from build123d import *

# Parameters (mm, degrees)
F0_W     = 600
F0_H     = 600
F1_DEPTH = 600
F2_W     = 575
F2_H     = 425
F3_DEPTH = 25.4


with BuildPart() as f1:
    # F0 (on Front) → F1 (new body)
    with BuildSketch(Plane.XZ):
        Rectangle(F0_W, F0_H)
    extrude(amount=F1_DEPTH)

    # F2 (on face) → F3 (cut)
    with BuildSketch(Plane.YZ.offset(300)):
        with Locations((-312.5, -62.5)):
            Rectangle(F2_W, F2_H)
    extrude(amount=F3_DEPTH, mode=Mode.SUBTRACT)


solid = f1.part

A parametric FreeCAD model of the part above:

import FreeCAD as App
import Part
import Sketcher
Q = App.Units.Quantity

doc = App.newDocument("Part")
body = doc.addObject("PartDesign::Body", "Body")

# Sketch on XZ plane
sketch1 = body.newObject("Sketcher::SketchObject", "Sketch")
sketch1.AttachmentSupport = (doc.getObject("XZ_Plane"), [""])
sketch1.MapMode = "FlatFace"
sketch1.addGeometry([
    Part.LineSegment(App.Vector(-300, 300, 0), App.Vector(-300, -300, 0)),
    Part.LineSegment(App.Vector(-300, -300, 0), App.Vector(300, -300, 0)),
    Part.LineSegment(App.Vector(300, -300, 0), App.Vector(300, 300, 0)),
    Part.LineSegment(App.Vector(300, 300, 0), App.Vector(-300, 300, 0)),
], False)
sketch1.addConstraint([
    Sketcher.Constraint("Coincident", 0, 2, 1, 1),
    Sketcher.Constraint("Coincident", 1, 2, 2, 1),
    Sketcher.Constraint("Coincident", 2, 2, 3, 1),
    Sketcher.Constraint("Coincident", 3, 2, 0, 1),
    Sketcher.Constraint("Vertical", 0),
    Sketcher.Constraint("Horizontal", 1),
    Sketcher.Constraint("Vertical", 2),
    Sketcher.Constraint("Horizontal", 3),
    Sketcher.Constraint("Symmetric", 0, 2, 2, 2, -1, 1),
    Sketcher.Constraint("Equal", 3, 0),
    Sketcher.Constraint("DistanceX", 1, 1, 1, 2, Q("600 mm")),
])
pad1 = body.newObject("PartDesign::Pad", "Pad")
pad1.Profile = sketch1
pad1.Length = 600

# Sketch on YZ plane
sketch2 = body.newObject("Sketcher::SketchObject", "Sketch001")
sketch2.AttachmentSupport = (doc.getObject("YZ_Plane"), [""])
sketch2.MapMode = "FlatFace"
sketch2.AttachmentOffset = App.Placement(App.Vector(0, 0, 300), App.Rotation())
sketch2.addGeometry([
    Part.LineSegment(App.Vector(-600, 150, 0), App.Vector(-600, -275, 0)),
    Part.LineSegment(App.Vector(-600, -275, 0), App.Vector(-25, -275, 0)),
    Part.LineSegment(App.Vector(-25, -275, 0), App.Vector(-25, 150, 0)),
    Part.LineSegment(App.Vector(-25, 150, 0), App.Vector(-600, 150, 0)),
], False)
sketch2.addConstraint([
    Sketcher.Constraint("Coincident", 0, 2, 1, 1),
    Sketcher.Constraint("Coincident", 1, 2, 2, 1),
    Sketcher.Constraint("Coincident", 2, 2, 3, 1),
    Sketcher.Constraint("Coincident", 3, 2, 0, 1),
    Sketcher.Constraint("Vertical", 0),
    Sketcher.Constraint("Horizontal", 1),
    Sketcher.Constraint("Vertical", 2),
    Sketcher.Constraint("Horizontal", 3),
    Sketcher.Constraint("DistanceX", 1, 1, 1, 2, Q("575 mm")),
    Sketcher.Constraint("DistanceY", 0, 2, 0, 1, Q("425 mm")),
    Sketcher.Constraint("DistanceX", 0, 2, -1, 1, Q("600 mm")),
    Sketcher.Constraint("DistanceY", 0, 2, -1, 1, Q("275 mm")),
])
pocket1 = body.newObject("PartDesign::Pocket", "Pocket")
pocket1.Profile = sketch2
pocket1.Length = 25.4
pocket1.Reversed = True

doc.recompute()
